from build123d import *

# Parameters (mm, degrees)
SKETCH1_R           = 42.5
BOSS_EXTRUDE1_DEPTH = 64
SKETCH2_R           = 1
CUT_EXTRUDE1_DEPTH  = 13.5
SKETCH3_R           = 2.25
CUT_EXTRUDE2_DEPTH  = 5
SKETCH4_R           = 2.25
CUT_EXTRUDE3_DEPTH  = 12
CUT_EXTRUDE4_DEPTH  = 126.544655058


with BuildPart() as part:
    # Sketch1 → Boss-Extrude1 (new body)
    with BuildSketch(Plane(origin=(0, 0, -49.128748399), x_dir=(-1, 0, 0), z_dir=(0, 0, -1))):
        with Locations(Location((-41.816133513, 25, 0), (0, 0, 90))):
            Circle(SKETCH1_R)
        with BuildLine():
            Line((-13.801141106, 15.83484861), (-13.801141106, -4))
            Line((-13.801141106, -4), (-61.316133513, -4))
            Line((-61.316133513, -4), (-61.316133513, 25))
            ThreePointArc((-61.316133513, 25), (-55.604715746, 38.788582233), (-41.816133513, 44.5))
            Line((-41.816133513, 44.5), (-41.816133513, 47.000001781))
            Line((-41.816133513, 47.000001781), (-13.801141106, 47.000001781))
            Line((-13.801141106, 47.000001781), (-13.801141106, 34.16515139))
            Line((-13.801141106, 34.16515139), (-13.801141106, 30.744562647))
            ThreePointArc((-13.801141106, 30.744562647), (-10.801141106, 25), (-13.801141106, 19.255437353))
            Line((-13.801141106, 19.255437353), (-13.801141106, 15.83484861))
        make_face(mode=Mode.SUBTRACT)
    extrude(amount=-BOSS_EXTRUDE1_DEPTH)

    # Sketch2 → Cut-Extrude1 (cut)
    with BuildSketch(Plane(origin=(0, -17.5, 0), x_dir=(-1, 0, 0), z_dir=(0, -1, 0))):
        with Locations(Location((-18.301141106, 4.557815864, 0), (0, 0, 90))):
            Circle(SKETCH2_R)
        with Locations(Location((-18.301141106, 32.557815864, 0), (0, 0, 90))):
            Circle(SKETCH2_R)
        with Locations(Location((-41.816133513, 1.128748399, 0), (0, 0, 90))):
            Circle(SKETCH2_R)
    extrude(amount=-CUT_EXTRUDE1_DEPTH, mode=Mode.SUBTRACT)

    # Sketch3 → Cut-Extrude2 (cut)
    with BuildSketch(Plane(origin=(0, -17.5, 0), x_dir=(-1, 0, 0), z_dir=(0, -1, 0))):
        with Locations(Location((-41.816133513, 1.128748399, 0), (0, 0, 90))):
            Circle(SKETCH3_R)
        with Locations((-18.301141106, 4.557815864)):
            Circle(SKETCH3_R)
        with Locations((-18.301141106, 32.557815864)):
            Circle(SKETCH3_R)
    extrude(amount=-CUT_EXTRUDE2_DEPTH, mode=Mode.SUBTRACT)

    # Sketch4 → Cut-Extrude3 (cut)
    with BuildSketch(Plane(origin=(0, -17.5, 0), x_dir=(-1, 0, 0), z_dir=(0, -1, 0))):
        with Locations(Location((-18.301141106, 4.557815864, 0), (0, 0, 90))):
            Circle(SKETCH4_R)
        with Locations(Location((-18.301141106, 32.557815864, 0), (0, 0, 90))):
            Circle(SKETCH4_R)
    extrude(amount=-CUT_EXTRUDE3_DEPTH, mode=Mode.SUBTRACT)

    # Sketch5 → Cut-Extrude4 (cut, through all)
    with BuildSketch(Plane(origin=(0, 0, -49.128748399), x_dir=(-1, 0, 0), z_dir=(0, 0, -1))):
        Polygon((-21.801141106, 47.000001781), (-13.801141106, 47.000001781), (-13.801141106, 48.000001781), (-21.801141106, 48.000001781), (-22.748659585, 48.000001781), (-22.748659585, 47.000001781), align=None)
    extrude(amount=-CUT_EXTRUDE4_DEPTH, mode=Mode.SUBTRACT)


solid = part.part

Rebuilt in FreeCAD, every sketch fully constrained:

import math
import FreeCAD as App
import Part
import Sketcher
from FreeCAD import Vector
Q = App.Units.Quantity


def add_polygon(sketch, points):
    """Adds a closed chain of lines whose ends are joined by coincident constraints."""
    first, n = sketch.GeometryCount, len(points)
    for a, b in zip(points, points[1:] + points[:1]):
        sketch.addGeometry(Part.LineSegment(App.Vector(*a, 0), App.Vector(*b, 0)), False)
    for i in range(n):
        sketch.addConstraint(Sketcher.Constraint("Coincident", first + i, 2, first + (i + 1) % n, 1))

doc = App.newDocument("Part")
body = doc.addObject("PartDesign::Body", "Body")

sketch1 = body.newObject("Sketcher::SketchObject", "Sketch")
sketch1.AttachmentSupport = (doc.getObject("XY_Plane"), [""])
sketch1.MapMode = "FlatFace"
sketch1.AttachmentOffset = App.Placement(Vector(0, 0, -49.128748), App.Rotation())
sketch1.addGeometry(Part.Circle(Vector(41.8, 25, 0), Vector(0, 0, 1), 42.5), False)
sketch1.addGeometry(Part.LineSegment(Vector(13.8, 19.3, 0), Vector(13.8, -4, 0)), False)
sketch1.addGeometry(Part.LineSegment(Vector(13.8, -4, 0), Vector(61.3, -4, 0)), False)
sketch1.addGeometry(Part.LineSegment(Vector(61.3, -4, 0), Vector(61.3, 25, 0)), False)
sketch1.addGeometry(Part.ArcOfCircle(Part.Circle(Vector(41.8, 25, 0), Vector(0, 0, 1), 19.5), math.radians(0), math.radians(90)), False)
sketch1.addGeometry(Part.LineSegment(Vector(41.8, 44.5, 0), Vector(41.8, 47, 0)), False)
sketch1.addGeometry(Part.LineSegment(Vector(41.8, 47, 0), Vector(13.8, 47, 0)), False)
sketch1.addGeometry(Part.LineSegment(Vector(13.8, 47, 0), Vector(13.8, 30.7, 0)), False)
sketch1.addGeometry(Part.ArcOfCircle(Part.Circle(Vector(17.8, 25, 0), Vector(0, 0, 1), 7), math.radians(125), math.radians(235)), False)
sketch1.addConstraint(Sketcher.Constraint("Coincident", 1, 2, 2, 1))
sketch1.addConstraint(Sketcher.Constraint("Coincident", 2, 2, 3, 1))
sketch1.addConstraint(Sketcher.Constraint("Tangent", 3, 2, 4, 1))
sketch1.addConstraint(Sketcher.Constraint("Coincident", 4, 2, 5, 1))
sketch1.addConstraint(Sketcher.Constraint("Coincident", 5, 2, 6, 1))
sketch1.addConstraint(Sketcher.Constraint("Coincident", 6, 2, 7, 1))
sketch1.addConstraint(Sketcher.Constraint("Coincident", 7, 2, 8, 1))
sketch1.addConstraint(Sketcher.Constraint("Coincident", 8, 2, 1, 1))
sketch1.addConstraint(Sketcher.Constraint("Vertical", 1))
sketch1.addConstraint(Sketcher.Constraint("Horizontal", 2))
sketch1.addConstraint(Sketcher.Constraint("Vertical", 3))
sketch1.addConstraint(Sketcher.Constraint("Vertical", 5))
sketch1.addConstraint(Sketcher.Constraint("Horizontal", 6))
sketch1.addConstraint(Sketcher.Constraint("Vertical", 7))
sketch1.addConstraint(Sketcher.Constraint("Coincident", 4, 3, 0, 3))
sketch1.addConstraint(Sketcher.Constraint("Horizontal", 4, 3, 8, 3))
sketch1.addConstraint(Sketcher.Constraint("Vertical", 0, 3, 4, 2))
sketch1.addConstraint(Sketcher.Constraint("Vertical", 1, 2, 6, 2))
sketch1.addConstraint(Sketcher.Constraint("Diameter", 0, Q("85 mm")))
sketch1.addConstraint(Sketcher.Constraint("Radius", 8, Q("7 mm")))
sketch1.addConstraint(Sketcher.Constraint("Radius", 4, Q("19.5 mm")))
sketch1.addConstraint(Sketcher.Constraint("DistanceY", 3, 1, 3, 2, Q("29 mm")))
sketch1.addConstraint(Sketcher.Constraint("DistanceY", 5, 1, 5, 2, Q("2.500002 mm")))
sketch1.addConstraint(Sketcher.Constraint("DistanceY", -1, 1, 0, 3, Q("25 mm")))
sketch1.addConstraint(Sketcher.Constraint("DistanceX", 1, 2, 8, 3, Q("4 mm")))
sketch1.addConstraint(Sketcher.Constraint("DistanceX", 2, 1, 2, 2, Q("47.514992 mm")))
sketch1.addConstraint(Sketcher.Constraint("DistanceX", -1, 1, 8, 3, Q("17.801141 mm")))
pad1 = body.newObject("PartDesign::Pad", "Pad")
pad1.Profile = sketch1
pad1.Length = 64

sketch2 = body.newObject("Sketcher::SketchObject", "Sketch001")
sketch2.AttachmentSupport = (doc.getObject("XZ_Plane"), [""])
sketch2.MapMode = "FlatFace"
sketch2.AttachmentOffset = App.Placement(Vector(0, 0, 17.5), App.Rotation())
sketch2.addGeometry(Part.Circle(Vector(18.3, -4.6, 0), Vector(0, 0, 1), 1), False)
sketch2.addGeometry(Part.Circle(Vector(18.3, -32.6, 0), Vector(0, 0, 1), 1), False)
sketch2.addGeometry(Part.Circle(Vector(41.8, -1.1, 0), Vector(0, 0, 1), 1), False)
sketch2.addConstraint(Sketcher.Constraint("Equal", 0, 1))
sketch2.addConstraint(Sketcher.Constraint("Equal", 1, 2))
sketch2.addConstraint(Sketcher.Constraint("Vertical", 0, 3, 1, 3))
sketch2.addConstraint(Sketcher.Constraint("Diameter", 0, Q("2 mm")))
sketch2.addConstraint(Sketcher.Constraint("DistanceY", 1, 3, 0, 3, Q("28 mm")))
sketch2.addConstraint(Sketcher.Constraint("DistanceX", -1, 1, 0, 3, Q("18.301141 mm")))
sketch2.addConstraint(Sketcher.Constraint("DistanceY", 2, 3, -1, 1, Q("1.128748 mm")))
sketch2.addConstraint(Sketcher.Constraint("DistanceY", 0, 3, -1, 1, Q("4.557816 mm")))
sketch2.addConstraint(Sketcher.Constraint("DistanceX", -1, 1, 2, 3, Q("41.816134 mm")))
pocket1 = body.newObject("PartDesign::Pocket", "Pocket")
pocket1.Profile = sketch2
pocket1.Length = 13.5

sketch3 = body.newObject("Sketcher::SketchObject", "Sketch002")
sketch3.AttachmentSupport = (doc.getObject("XZ_Plane"), [""])
sketch3.MapMode = "FlatFace"
sketch3.AttachmentOffset = App.Placement(Vector(0, 0, 17.5), App.Rotation())
sketch3.addGeometry(Part.Circle(Vector(41.8, -1.1, 0), Vector(0, 0, 1), 2.2), False)
sketch3.addGeometry(Part.Circle(Vector(18.3, -4.6, 0), Vector(0, 0, 1), 2.2), False)
sketch3.addGeometry(Part.Circle(Vector(18.3, -32.6, 0), Vector(0, 0, 1), 2.2), False)
sketch3.addConstraint(Sketcher.Constraint("Equal", 0, 1))
sketch3.addConstraint(Sketcher.Constraint("Equal", 1, 2))
sketch3.addConstraint(Sketcher.Constraint("Vertical", 1, 3, 2, 3))
sketch3.addConstraint(Sketcher.Constraint("Diameter", 0, Q("4.5 mm")))
sketch3.addConstraint(Sketcher.Constraint("DistanceY", 2, 3, 1, 3, Q("28 mm")))
sketch3.addConstraint(Sketcher.Constraint("DistanceY", 0, 3, -1, 1, Q("1.128748 mm")))
sketch3.addConstraint(Sketcher.Constraint("DistanceX", -1, 1, 1, 3, Q("18.301141 mm")))
sketch3.addConstraint(Sketcher.Constraint("DistanceX", -1, 1, 0, 3, Q("41.816134 mm")))
sketch3.addConstraint(Sketcher.Constraint("DistanceY", 1, 3, -1, 1, Q("4.557816 mm")))
pocket2 = body.newObject("PartDesign::Pocket", "Pocket001")
pocket2.Profile = sketch3
pocket2.Length = 5

sketch4 = body.newObject("Sketcher::SketchObject", "Sketch003")
sketch4.AttachmentSupport = (doc.getObject("XZ_Plane"), [""])
sketch4.MapMode = "FlatFace"
sketch4.AttachmentOffset = App.Placement(Vector(0, 0, 17.5), App.Rotation())
sketch4.addGeometry(Part.Circle(Vector(18.3, -4.6, 0), Vector(0, 0, 1), 2.2), False)
sketch4.addGeometry(Part.Circle(Vector(18.3, -32.6, 0), Vector(0, 0, 1), 2.2), False)
sketch4.addConstraint(Sketcher.Constraint("Equal", 0, 1))
sketch4.addConstraint(Sketcher.Constraint("Vertical", 0, 3, 1, 3))
sketch4.addConstraint(Sketcher.Constraint("Diameter", 0, Q("4.5 mm")))
sketch4.addConstraint(Sketcher.Constraint("DistanceY", 1, 3, 0, 3, Q("28 mm")))
sketch4.addConstraint(Sketcher.Constraint("DistanceX", -1, 1, 0, 3, Q("18.301141 mm")))
sketch4.addConstraint(Sketcher.Constraint("DistanceY", 0, 3, -1, 1, Q("4.557816 mm")))
pocket3 = body.newObject("PartDesign::Pocket", "Pocket002")
pocket3.Profile = sketch4
pocket3.Length = 12

sketch5 = body.newObject("Sketcher::SketchObject", "Sketch004")
sketch5.AttachmentSupport = (doc.getObject("XY_Plane"), [""])
sketch5.MapMode = "FlatFace"
sketch5.AttachmentOffset = App.Placement(Vector(0, 0, -49.128748), App.Rotation())
add_polygon(sketch5, [(13.8, 47), (13.8, 48), (22.7, 48), (22.7, 47)])
sketch5.addConstraint(Sketcher.Constraint("Vertical", 0))
sketch5.addConstraint(Sketcher.Constraint("Horizontal", 1))
sketch5.addConstraint(Sketcher.Constraint("Vertical", 2))
sketch5.addConstraint(Sketcher.Constraint("Horizontal", 3))
sketch5.addConstraint(Sketcher.Constraint("DistanceY", 0, 1, 0, 2, Q("1 mm")))
sketch5.addConstraint(Sketcher.Constraint("DistanceY", -1, 1, 0, 2, Q("48.000002 mm")))
sketch5.addConstraint(Sketcher.Constraint("DistanceX", 1, 1, 1, 2, Q("8.947518 mm")))
sketch5.addConstraint(Sketcher.Constraint("DistanceX", -1, 1, 0, 2, Q("13.801141 mm")))
pocket4 = body.newObject("PartDesign::Pocket", "Pocket003")
pocket4.Profile = sketch5
pocket4.Type = "ThroughAll"
pocket4.Reversed = True

doc.recompute()
